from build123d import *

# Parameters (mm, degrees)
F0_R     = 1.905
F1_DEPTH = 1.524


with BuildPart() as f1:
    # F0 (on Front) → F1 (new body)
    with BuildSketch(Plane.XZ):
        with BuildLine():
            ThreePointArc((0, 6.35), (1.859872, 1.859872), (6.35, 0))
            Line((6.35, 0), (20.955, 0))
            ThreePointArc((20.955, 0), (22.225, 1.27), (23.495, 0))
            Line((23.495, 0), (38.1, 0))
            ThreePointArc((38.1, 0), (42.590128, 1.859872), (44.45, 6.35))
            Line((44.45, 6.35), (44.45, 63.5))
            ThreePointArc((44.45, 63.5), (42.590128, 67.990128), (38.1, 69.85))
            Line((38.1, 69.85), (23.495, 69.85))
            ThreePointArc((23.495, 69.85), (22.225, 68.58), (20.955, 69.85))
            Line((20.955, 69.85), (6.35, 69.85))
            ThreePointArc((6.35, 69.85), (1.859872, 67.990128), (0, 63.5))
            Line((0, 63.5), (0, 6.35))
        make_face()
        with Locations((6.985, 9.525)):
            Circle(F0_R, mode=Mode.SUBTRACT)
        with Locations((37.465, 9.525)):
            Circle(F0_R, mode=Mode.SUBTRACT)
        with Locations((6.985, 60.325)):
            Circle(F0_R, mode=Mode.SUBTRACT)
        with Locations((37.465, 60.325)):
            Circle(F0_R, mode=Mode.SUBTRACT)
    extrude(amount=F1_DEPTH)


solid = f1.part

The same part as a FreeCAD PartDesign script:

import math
import FreeCAD as App
import Part
import Sketcher

V = App.Vector
Q = App.Units.Quantity

doc = App.newDocument("Part")
body = doc.addObject("PartDesign::Body", "Body")

sketch1 = doc.addObject("Sketcher::SketchObject", "Sketch")
body.addObject(sketch1)
sketch1.AttachmentSupport = (doc.XZ_Plane, [""])
sketch1.MapMode = "FlatFace"
sketch1.addGeometry([
    Part.ArcOfCircle(Part.Circle(V(6.35, 6.35, 0), V(0, 0, 1), 6.35), math.radians(-179.999998), math.radians(-90.000002)),
    Part.LineSegment(V(6.35, 0, 0), V(20.955, 0, 0)),
    Part.ArcOfCircle(Part.Circle(V(22.225, 0, 0), V(0, 0, 1), 1.27), math.radians(0), math.radians(180)),
    Part.LineSegment(V(23.495, 0, 0), V(38.1, 0, 0)),
    Part.ArcOfCircle(Part.Circle(V(38.1, 6.35, 0), V(0, 0, 1), 6.35), math.radians(-89.999998), math.radians(-0.000002)),
    Part.LineSegment(V(44.45, 6.35, 0), V(44.45, 63.5, 0)),
    Part.ArcOfCircle(Part.Circle(V(38.1, 63.5, 0), V(0, 0, 1), 6.35), math.radians(0.000002), math.radians(89.999998)),
    Part.LineSegment(V(38.1, 69.85, 0), V(23.495, 69.85, 0)),
    Part.ArcOfCircle(Part.Circle(V(22.225, 69.85, 0), V(0, 0, 1), 1.27), math.radians(180), math.radians(360)),
    Part.LineSegment(V(20.955, 69.85, 0), V(6.35, 69.85, 0)),
    Part.ArcOfCircle(Part.Circle(V(6.35, 63.5, 0), V(0, 0, 1), 6.35), math.radians(90.000002), math.radians(179.999998)),
    Part.LineSegment(V(0, 63.5, 0), V(0, 6.35, 0)),
    Part.Circle(V(6.985, 9.525, 0), V(0, 0, 1), 1.905),
    Part.Circle(V(37.465, 9.525, 0), V(0, 0, 1), 1.905),
    Part.Circle(V(6.985, 60.325, 0), V(0, 0, 1), 1.905),
    Part.Circle(V(37.465, 60.325, 0), V(0, 0, 1), 1.905),
], False)
sketch1.addConstraint([
    Sketcher.Constraint("Tangent", 0, 2, 1, 1),
    Sketcher.Constraint("Coincident", 1, 2, 2, 2),
    Sketcher.Constraint("Coincident", 2, 1, 3, 1),
    Sketcher.Constraint("Tangent", 3, 2, 4, 1),
    Sketcher.Constraint("Tangent", 4, 2, 5, 1),
    Sketcher.Constraint("Tangent", 5, 2, 6, 1),
    Sketcher.Constraint("Tangent", 6, 2, 7, 1),
    Sketcher.Constraint("Coincident", 7, 2, 8, 2),
    Sketcher.Constraint("Coincident", 8, 1, 9, 1),
    Sketcher.Constraint("Tangent", 9, 2, 10, 1),
    Sketcher.Constraint("Tangent", 10, 2, 11, 1),
    Sketcher.Constraint("Tangent", 11, 2, 0, 1),
    Sketcher.Constraint("Horizontal", 1),
    Sketcher.Constraint("Horizontal", 3),
    Sketcher.Constraint("Vertical", 5),
    Sketcher.Constraint("Horizontal", 7),
    Sketcher.Constraint("Horizontal", 9),
    Sketcher.Constraint("Vertical", 11),
    Sketcher.Constraint("Equal", 0, 4),
    Sketcher.Constraint("Equal", 4, 6),
    Sketcher.Constraint("Equal", 2, 8),
    Sketcher.Constraint("Equal", 6, 10),
    Sketcher.Constraint("Equal", 12, 13),
    Sketcher.Constraint("Equal", 13, 14),
    Sketcher.Constraint("Equal", 14, 15),
    Sketcher.Constraint("PointOnObject", 2, 3, -1),
    Sketcher.Constraint("PointOnObject", 0, 2, -1),
    Sketcher.Constraint("PointOnObject", 2, 1, -1),
    Sketcher.Constraint("PointOnObject", 10, 2, -2),
    Sketcher.Constraint("Horizontal", 6, 3, 10, 3),
    Sketcher.Constraint("Horizontal", 12, 3, 13, 3),
    Sketcher.Constraint("Horizontal", 14, 3, 15, 3),
    Sketcher.Constraint("Horizontal", 8, 3, 6, 2),
    Sketcher.Constraint("Vertical", 2, 3, 8, 3),
    Sketcher.Constraint("Vertical", 12, 3, 14, 3),
    Sketcher.Constraint("Vertical", 13, 3, 15, 3),
    Sketcher.Constraint("Equal", 1, 3),
    Sketcher.Constraint("Diameter", 12, Q("0.15 in")),
    Sketcher.Constraint("Radius", 0, Q("0.25 in")),
    Sketcher.Constraint("Radius", 2, Q("0.05 in")),
    Sketcher.Constraint("DistanceY", 12, 3, 14, 3, Q("2 in")),
    Sketcher.Constraint("DistanceY", 5, 1, 5, 2, Q("2.25 in")),
    Sketcher.Constraint("DistanceX", -1, 1, 4, 3, Q("1.5 in")),
    Sketcher.Constraint("DistanceX", 12, 3, 2, 3, Q("0.6 in")),
    Sketcher.Constraint("DistanceX", 2, 3, 13, 3, Q("0.6 in")),
    Sketcher.Constraint("DistanceY", -1, 1, 12, 3, Q("0.375 in")),
])
pad1 = doc.addObject("PartDesign::Pad", "Pad")
body.addObject(pad1)
pad1.Profile = sketch1
pad1.Length = Q("0.06 in")

doc.recompute()
